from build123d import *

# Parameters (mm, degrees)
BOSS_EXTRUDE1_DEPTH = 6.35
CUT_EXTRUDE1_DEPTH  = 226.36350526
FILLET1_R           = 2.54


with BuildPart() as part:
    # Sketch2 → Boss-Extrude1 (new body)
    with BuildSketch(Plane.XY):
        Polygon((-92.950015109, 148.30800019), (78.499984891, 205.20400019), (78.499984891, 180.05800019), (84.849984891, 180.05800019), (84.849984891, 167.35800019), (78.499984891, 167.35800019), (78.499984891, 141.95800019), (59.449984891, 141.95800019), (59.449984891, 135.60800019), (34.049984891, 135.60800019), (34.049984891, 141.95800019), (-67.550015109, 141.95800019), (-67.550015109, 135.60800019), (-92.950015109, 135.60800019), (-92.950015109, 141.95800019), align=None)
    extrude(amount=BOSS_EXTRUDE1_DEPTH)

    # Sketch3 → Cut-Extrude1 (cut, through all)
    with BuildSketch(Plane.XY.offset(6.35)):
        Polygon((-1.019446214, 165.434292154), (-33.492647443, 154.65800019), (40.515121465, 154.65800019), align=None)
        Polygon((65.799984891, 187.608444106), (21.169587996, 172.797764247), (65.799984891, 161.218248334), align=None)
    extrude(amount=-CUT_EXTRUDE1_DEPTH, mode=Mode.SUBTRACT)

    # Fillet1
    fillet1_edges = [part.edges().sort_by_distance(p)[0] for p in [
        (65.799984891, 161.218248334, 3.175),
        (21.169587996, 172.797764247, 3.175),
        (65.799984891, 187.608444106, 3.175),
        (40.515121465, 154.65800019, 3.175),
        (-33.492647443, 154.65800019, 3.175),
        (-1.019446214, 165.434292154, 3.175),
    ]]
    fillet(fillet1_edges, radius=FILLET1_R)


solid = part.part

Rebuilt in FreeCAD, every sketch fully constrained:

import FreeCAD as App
import Part
import Sketcher

V = App.Vector
Q = App.Units.Quantity


def edges_at(feature, points):
    """Names of the edges that pass closest to the given points."""
    edges = feature.Shape.Edges
    near = lambda p: min(range(len(edges)), key=lambda i: edges[i].distToShape(Part.Vertex(*p))[0])
    return sorted({f"Edge{near(p) + 1}" for p in points})


def add_polygon(sketch, points):
    """Adds a closed chain of lines whose ends are joined by coincident constraints."""
    first, n = sketch.GeometryCount, len(points)
    for a, b in zip(points, points[1:] + points[:1]):
        sketch.addGeometry(Part.LineSegment(App.Vector(*a, 0), App.Vector(*b, 0)), False)
    for i in range(n):
        sketch.addConstraint(Sketcher.Constraint("Coincident", first + i, 2, first + (i + 1) % n, 1))

doc = App.newDocument("Part")
body = doc.addObject("PartDesign::Body", "Body")

# Sketch on XY plane
sketch1 = body.newObject("Sketcher::SketchObject", "Sketch")
sketch1.AttachmentSupport = (doc.getObject("XY_Plane"), [""])
sketch1.MapMode = "FlatFace"
add_polygon(sketch1, [(78, 205), (-93, 148), (-93, 136), (-68, 136), (-68, 142), (34, 142), (34, 136), (59, 136), (59, 142), (78, 142), (78, 167), (85, 167), (85, 180), (78, 180)])  # lines 0-13
sketch1.addConstraint([
    Sketcher.Constraint("Vertical", 1),
    Sketcher.Constraint("Horizontal", 2),
    Sketcher.Constraint("Vertical", 3),
    Sketcher.Constraint("Horizontal", 4),
    Sketcher.Constraint("Vertical", 5),
    Sketcher.Constraint("Horizontal", 6),
    Sketcher.Constraint("Vertical", 7),
    Sketcher.Constraint("Horizontal", 8),
    Sketcher.Constraint("Vertical", 9),
    Sketcher.Constraint("Horizontal", 10),
    Sketcher.Constraint("Vertical", 11),
    Sketcher.Constraint("Horizontal", 12),
    Sketcher.Constraint("Vertical", 13),
    Sketcher.Constraint("Horizontal", 2, 2, 5, 2),
    Sketcher.Constraint("Horizontal", 4, 2, 7, 2),
    Sketcher.Constraint("Vertical", 9, 2, 12, 2),
    Sketcher.Constraint("Equal", 2, 6),
    Sketcher.Constraint("Equal", 12, 3),
    Sketcher.Constraint("Equal", 6, 9),
    Sketcher.Constraint("Equal", 1, 11),
    Sketcher.Constraint("DistanceX", 2, 1, 2, 2, Q("1 in")),
    Sketcher.Constraint("DistanceX", 4, 1, 4, 2, Q("4 in")),
    Sketcher.Constraint("DistanceY", 1, 2, 1, 1, Q("0.5 in")),
    Sketcher.Constraint("DistanceX", 7, 2, 10, 2, Q("1 in")),
    Sketcher.Constraint("DistanceX", 8, 1, 8, 2, Q("0.75 in")),
    Sketcher.Constraint("DistanceY", 13, 1, 13, 2, Q("0.99 in")),
    Sketcher.Constraint("DistanceY", -1, 1, 0, 2, 148.308),
    Sketcher.Constraint("DistanceX", 0, 2, -1, 1, 92.950015),
])
pad1 = body.newObject("PartDesign::Pad", "Pad")
pad1.Profile = sketch1
pad1.Length = Q("0.25 in")

# Sketch on XY plane
sketch2 = body.newObject("Sketcher::SketchObject", "Sketch001")
sketch2.AttachmentSupport = (doc.getObject("XY_Plane"), [""])
sketch2.MapMode = "FlatFace"
sketch2.AttachmentOffset = App.Placement(V(0, 0, 0.25 * 25.4), App.Rotation())
add_polygon(sketch2, [(-1, 165), (-33, 155), (41, 155)])  # lines 0-2
add_polygon(sketch2, [(66, 188), (21, 173), (66, 161)])  # lines 3-5
sketch2.addConstraint([
    Sketcher.Constraint("Horizontal", 1),
    Sketcher.Constraint("Vertical", 5),
    Sketcher.Constraint("Parallel", 0, 3),
    Sketcher.Constraint("Parallel", 2, 4),
    Sketcher.Constraint("DistanceX", 1, 1, 1, 2, 74.007769),
    Sketcher.Constraint("DistanceY", -1, 1, 0, 2, 154.658),
    Sketcher.Constraint("DistanceX", 0, 2, 2, 2, 32.473201),
    Sketcher.Constraint("DistanceY", 5, 1, 5, 2, 26.390196),
    Sketcher.Constraint("DistanceX", -1, 1, 1, 2, 40.515121),
    Sketcher.Constraint("DistanceY", -1, 1, 4, 2, 161.218248),
    Sketcher.Constraint("DistanceY", 0, 2, 2, 2, 10.776292),
    Sketcher.Constraint("DistanceX", 2, 2, 4, 2, 66.819431),
])
pocket1 = body.newObject("PartDesign::Pocket", "Pocket")
pocket1.Profile = sketch2
pocket1.Type = "ThroughAll"
doc.recompute()

fillet = body.newObject("PartDesign::Fillet", "Fillet")
fillet.Base = (pocket1, edges_at(pocket1, [
    (65.8, 161.218, 3.175),
    (21.17, 172.798, 3.175),
    (65.8, 187.608, 3.175),
    (40.515, 154.658, 3.175),
    (-33.493, 154.658, 3.175),
    (-1.019, 165.434, 3.175),
]))
fillet.Radius = Q("0.1 in")

doc.recompute()
